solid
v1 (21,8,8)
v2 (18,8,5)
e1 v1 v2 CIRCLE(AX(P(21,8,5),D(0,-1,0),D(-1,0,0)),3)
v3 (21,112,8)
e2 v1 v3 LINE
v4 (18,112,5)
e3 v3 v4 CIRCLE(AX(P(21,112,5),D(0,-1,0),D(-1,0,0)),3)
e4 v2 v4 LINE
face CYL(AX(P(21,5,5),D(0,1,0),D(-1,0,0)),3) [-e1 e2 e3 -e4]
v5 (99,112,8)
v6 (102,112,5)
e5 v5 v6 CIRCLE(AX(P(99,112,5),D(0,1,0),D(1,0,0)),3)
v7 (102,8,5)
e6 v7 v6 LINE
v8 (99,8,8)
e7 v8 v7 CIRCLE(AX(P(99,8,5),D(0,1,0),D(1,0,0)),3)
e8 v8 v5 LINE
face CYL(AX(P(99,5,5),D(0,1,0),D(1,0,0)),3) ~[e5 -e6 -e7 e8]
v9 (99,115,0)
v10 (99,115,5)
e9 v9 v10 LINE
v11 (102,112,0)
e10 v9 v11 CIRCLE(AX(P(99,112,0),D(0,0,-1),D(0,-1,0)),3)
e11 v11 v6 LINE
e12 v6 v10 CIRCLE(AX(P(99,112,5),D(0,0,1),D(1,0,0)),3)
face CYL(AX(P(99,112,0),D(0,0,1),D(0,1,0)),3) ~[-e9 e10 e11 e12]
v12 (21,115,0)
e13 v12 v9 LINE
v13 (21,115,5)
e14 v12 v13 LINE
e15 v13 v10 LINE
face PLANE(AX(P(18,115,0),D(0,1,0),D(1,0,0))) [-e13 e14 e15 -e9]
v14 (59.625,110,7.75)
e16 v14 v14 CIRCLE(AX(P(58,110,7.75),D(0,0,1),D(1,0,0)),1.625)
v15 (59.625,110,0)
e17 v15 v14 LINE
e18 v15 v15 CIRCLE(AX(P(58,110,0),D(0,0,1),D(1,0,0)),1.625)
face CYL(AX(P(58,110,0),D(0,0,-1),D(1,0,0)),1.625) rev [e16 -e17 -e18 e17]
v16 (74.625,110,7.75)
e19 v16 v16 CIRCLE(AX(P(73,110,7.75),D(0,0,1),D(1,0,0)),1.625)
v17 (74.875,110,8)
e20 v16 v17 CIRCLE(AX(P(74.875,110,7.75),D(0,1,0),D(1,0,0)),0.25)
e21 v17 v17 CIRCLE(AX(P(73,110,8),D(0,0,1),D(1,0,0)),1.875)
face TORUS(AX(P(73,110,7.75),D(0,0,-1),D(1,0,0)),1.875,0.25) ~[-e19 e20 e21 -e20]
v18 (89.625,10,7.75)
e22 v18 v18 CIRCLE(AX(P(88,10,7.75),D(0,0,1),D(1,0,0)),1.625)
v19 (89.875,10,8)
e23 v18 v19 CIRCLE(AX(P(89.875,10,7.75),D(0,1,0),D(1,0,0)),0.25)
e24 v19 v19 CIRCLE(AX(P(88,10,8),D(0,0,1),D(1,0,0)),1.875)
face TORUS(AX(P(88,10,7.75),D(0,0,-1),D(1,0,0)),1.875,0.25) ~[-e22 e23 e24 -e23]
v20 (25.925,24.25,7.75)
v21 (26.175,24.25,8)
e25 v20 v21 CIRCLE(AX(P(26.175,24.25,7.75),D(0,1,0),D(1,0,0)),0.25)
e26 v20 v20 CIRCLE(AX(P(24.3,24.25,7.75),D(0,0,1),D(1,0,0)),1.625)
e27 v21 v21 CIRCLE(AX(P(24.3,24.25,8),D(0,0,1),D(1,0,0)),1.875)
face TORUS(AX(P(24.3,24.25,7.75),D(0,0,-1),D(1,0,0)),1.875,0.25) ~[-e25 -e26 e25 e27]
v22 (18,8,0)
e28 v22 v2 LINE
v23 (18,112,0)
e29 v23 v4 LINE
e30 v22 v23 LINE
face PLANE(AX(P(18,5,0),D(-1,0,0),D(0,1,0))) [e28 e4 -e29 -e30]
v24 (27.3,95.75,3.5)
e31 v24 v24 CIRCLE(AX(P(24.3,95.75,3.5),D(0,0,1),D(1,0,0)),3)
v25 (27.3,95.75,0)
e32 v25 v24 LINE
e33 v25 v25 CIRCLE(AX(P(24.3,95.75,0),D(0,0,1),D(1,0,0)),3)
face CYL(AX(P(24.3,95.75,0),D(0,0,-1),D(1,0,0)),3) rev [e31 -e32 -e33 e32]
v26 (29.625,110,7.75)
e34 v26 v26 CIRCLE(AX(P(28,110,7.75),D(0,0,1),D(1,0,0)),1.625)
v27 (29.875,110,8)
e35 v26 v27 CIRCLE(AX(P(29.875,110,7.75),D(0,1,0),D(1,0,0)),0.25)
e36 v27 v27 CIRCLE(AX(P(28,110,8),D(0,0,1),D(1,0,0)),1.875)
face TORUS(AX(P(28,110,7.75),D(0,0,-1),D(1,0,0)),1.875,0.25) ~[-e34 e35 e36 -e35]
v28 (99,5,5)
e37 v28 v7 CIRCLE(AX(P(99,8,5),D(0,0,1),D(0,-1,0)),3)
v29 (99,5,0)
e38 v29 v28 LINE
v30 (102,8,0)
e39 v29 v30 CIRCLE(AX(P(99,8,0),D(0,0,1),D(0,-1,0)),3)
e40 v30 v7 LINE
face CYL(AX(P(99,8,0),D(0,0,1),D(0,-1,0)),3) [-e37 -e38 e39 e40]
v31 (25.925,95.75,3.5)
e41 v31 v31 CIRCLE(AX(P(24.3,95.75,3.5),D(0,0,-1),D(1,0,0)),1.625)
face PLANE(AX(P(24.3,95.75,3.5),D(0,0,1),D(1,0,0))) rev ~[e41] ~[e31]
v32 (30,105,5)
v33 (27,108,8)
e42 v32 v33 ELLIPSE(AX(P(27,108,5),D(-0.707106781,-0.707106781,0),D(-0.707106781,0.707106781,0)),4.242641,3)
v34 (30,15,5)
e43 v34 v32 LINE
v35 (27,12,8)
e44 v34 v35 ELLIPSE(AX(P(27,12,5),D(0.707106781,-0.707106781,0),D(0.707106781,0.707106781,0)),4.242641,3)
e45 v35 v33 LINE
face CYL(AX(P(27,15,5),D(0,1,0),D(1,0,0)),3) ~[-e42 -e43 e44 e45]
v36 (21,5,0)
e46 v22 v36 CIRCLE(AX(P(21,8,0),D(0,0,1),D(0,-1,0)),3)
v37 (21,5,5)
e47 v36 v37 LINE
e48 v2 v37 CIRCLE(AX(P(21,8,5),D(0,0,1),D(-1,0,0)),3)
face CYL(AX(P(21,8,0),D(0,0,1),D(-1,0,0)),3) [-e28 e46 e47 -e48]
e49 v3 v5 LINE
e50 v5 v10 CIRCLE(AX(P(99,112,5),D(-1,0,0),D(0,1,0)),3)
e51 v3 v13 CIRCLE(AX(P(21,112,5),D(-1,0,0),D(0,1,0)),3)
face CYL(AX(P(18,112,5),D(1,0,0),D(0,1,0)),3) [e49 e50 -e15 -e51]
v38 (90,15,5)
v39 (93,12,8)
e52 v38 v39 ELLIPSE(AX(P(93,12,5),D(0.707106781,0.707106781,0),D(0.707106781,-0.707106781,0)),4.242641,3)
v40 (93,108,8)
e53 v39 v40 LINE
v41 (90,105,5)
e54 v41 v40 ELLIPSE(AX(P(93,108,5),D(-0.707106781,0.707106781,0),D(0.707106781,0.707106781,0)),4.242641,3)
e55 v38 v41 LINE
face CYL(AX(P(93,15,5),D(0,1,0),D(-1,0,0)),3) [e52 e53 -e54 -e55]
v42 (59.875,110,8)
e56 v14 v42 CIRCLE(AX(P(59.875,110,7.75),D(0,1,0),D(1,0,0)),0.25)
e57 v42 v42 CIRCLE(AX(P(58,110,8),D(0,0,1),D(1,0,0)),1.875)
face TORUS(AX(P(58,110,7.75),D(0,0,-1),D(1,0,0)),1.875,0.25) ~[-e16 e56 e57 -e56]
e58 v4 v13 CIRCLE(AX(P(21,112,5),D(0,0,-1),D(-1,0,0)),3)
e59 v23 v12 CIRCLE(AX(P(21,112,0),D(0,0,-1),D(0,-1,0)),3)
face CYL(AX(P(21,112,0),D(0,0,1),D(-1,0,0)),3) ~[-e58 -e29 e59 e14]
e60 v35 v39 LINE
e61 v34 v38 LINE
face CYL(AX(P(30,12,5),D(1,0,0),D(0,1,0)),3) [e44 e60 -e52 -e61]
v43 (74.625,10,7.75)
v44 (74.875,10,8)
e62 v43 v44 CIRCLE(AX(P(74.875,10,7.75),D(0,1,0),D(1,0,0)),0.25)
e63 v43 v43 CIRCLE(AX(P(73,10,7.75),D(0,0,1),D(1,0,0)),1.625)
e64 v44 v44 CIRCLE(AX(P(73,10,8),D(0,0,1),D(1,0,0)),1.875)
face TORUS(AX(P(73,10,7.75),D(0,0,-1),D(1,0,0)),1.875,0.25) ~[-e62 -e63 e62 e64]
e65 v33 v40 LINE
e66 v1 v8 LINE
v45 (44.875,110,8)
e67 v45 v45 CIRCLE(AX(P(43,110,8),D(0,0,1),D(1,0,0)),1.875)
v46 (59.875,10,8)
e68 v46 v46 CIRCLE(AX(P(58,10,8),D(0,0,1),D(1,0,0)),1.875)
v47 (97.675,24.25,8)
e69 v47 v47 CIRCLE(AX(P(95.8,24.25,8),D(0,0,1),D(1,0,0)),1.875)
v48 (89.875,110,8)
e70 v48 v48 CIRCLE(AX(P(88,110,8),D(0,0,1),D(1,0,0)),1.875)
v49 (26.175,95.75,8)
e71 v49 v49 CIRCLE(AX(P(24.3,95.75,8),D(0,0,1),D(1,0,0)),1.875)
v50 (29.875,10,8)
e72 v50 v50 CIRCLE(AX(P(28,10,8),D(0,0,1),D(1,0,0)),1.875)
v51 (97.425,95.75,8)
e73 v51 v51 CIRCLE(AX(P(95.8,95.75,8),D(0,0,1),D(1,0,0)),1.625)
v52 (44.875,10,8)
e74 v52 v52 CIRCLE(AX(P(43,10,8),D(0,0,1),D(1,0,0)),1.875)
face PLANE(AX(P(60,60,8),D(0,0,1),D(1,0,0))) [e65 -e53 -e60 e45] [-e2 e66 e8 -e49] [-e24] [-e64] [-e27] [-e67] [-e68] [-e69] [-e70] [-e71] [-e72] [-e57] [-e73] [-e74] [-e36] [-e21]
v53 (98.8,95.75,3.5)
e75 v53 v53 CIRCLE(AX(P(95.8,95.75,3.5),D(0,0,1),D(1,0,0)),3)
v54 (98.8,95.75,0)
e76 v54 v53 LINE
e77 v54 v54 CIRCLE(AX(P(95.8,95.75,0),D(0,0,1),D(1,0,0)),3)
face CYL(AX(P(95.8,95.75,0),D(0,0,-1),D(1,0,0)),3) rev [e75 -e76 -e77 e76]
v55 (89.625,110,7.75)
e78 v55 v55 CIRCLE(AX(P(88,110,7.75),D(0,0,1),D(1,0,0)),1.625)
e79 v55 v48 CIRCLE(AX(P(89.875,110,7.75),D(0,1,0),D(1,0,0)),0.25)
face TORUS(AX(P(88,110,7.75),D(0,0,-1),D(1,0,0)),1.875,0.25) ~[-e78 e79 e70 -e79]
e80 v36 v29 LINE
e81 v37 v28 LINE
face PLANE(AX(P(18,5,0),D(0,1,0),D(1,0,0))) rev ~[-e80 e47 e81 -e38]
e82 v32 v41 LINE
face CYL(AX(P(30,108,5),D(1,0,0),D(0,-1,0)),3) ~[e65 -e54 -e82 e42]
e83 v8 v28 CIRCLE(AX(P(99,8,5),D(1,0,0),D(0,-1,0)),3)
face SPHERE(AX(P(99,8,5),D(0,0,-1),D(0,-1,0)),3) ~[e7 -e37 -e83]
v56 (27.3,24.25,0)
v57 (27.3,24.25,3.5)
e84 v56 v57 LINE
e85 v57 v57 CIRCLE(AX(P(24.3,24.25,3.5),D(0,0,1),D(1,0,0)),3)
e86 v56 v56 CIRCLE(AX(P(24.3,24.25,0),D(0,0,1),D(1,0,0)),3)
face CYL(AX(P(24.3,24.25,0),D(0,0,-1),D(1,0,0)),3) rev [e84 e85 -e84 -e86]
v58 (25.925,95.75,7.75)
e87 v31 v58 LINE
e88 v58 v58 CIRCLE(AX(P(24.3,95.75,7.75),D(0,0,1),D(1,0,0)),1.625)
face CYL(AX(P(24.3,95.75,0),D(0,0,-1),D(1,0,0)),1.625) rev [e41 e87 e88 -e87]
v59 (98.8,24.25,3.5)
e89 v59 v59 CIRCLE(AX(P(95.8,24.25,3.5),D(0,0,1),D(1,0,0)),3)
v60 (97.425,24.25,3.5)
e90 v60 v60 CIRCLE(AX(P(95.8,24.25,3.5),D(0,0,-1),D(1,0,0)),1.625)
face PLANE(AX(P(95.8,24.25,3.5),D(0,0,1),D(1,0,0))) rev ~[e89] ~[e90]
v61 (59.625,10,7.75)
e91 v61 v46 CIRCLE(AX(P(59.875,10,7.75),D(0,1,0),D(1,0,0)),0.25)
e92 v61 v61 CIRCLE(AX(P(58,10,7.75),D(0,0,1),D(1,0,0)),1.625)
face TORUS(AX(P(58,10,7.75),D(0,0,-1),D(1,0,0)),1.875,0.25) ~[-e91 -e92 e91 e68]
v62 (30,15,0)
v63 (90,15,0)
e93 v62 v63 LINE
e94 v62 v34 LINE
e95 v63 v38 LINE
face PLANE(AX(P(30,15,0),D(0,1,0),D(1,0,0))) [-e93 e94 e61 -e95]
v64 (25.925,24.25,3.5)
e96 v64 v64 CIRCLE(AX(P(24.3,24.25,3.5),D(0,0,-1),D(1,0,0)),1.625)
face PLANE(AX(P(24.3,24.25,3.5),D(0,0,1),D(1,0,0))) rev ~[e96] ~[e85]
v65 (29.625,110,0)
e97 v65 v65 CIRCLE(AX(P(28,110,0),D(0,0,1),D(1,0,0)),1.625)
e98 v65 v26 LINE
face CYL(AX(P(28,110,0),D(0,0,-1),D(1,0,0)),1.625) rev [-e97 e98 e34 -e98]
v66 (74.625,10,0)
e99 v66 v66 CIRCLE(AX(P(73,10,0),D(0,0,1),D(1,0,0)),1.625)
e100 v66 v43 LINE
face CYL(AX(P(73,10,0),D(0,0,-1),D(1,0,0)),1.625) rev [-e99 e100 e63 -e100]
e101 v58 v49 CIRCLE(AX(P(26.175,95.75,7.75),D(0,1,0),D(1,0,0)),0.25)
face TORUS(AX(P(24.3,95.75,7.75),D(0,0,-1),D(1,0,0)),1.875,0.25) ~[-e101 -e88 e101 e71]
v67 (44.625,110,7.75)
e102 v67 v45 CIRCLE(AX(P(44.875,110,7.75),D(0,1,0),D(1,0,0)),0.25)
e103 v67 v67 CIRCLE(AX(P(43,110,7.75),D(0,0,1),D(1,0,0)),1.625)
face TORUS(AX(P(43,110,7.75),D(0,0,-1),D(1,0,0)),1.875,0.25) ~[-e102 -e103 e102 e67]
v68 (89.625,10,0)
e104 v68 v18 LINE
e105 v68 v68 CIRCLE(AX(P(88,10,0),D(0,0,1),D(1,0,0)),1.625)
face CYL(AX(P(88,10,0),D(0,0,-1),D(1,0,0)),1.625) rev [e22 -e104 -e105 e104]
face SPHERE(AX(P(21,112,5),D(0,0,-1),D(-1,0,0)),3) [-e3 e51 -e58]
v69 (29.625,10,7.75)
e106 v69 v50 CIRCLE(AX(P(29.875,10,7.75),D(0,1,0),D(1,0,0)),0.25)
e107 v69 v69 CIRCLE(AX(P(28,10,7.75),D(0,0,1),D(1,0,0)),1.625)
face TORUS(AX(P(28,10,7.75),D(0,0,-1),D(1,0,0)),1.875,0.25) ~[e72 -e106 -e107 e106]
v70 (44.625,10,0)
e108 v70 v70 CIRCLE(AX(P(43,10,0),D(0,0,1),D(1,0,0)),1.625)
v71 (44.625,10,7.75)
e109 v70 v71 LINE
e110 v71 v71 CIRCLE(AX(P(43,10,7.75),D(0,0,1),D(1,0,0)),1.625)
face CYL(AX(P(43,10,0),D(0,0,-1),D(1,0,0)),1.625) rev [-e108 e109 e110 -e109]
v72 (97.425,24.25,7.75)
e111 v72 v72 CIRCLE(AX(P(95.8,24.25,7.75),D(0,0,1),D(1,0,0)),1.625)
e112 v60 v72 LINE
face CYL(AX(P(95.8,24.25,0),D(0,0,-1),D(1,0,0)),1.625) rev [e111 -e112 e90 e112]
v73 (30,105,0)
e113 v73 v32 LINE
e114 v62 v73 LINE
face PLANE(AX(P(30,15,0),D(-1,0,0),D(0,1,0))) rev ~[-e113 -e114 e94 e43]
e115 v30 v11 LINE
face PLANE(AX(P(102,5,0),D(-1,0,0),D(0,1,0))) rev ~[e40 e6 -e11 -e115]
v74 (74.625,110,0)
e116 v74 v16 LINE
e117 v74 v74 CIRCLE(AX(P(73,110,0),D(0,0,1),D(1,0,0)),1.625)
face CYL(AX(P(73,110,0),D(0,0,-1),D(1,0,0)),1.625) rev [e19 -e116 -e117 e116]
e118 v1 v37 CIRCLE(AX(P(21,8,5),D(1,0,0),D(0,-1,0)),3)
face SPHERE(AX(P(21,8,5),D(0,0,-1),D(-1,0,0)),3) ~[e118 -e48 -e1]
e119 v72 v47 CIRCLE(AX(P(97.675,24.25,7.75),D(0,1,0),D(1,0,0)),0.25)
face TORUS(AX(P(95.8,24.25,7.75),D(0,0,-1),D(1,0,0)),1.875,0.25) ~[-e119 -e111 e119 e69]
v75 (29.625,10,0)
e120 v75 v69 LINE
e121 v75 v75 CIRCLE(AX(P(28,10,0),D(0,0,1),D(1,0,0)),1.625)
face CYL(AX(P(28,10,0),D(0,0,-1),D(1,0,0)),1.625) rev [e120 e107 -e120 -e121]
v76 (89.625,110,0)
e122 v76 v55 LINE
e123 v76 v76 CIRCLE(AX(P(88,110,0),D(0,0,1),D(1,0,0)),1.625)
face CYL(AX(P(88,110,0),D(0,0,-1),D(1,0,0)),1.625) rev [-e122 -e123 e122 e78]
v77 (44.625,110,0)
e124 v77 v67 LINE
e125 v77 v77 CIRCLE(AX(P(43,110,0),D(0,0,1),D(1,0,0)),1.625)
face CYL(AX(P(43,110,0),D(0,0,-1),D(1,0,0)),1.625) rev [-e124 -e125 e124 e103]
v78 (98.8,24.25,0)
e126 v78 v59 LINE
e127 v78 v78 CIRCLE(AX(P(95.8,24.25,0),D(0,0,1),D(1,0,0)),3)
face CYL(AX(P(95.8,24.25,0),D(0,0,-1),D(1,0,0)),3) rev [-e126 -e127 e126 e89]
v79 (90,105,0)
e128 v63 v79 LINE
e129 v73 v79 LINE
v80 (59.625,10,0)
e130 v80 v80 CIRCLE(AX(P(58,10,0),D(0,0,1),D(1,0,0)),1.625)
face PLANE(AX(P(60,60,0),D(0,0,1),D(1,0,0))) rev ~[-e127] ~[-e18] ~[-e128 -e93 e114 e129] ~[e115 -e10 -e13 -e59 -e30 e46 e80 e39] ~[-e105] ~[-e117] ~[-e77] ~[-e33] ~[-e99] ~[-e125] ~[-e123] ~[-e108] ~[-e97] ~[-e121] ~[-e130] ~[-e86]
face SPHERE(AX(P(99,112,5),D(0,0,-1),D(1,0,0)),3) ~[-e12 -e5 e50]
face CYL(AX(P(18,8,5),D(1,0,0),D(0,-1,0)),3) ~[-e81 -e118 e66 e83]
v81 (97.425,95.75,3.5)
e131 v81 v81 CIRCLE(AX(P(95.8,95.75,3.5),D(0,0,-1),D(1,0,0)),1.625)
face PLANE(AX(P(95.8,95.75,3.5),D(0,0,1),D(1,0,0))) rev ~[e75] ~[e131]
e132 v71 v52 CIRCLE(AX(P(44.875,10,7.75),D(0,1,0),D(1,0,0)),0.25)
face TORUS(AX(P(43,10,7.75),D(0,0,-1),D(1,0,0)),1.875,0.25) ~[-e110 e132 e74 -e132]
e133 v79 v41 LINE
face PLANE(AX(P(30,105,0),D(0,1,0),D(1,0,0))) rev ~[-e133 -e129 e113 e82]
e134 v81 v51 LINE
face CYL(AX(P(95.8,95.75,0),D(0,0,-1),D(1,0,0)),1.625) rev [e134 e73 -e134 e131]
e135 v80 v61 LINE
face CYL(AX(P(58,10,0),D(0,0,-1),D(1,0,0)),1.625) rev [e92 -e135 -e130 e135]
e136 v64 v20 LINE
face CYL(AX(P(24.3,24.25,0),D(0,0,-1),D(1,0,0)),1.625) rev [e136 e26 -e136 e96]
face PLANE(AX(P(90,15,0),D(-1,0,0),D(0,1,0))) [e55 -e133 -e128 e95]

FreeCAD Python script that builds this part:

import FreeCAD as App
import Part
import Sketcher
from FreeCAD import Vector


def edges_at(feature, points):
    """Names of the edges that pass closest to the given points."""
    edges = feature.Shape.Edges
    near = lambda p: min(range(len(edges)), key=lambda i: edges[i].distToShape(Part.Vertex(*p))[0])
    return sorted({f"Edge{near(p) + 1}" for p in points})


def add_polygon(sketch, points):
    """Adds a closed chain of lines whose ends are joined by coincident constraints."""
    first, n = sketch.GeometryCount, len(points)
    for a, b in zip(points, points[1:] + points[:1]):
        sketch.addGeometry(Part.LineSegment(App.Vector(*a, 0), App.Vector(*b, 0)), False)
    for i in range(n):
        sketch.addConstraint(Sketcher.Constraint("Coincident", first + i, 2, first + (i + 1) % n, 1))

doc = App.newDocument("Part")
body = doc.addObject("PartDesign::Body", "Body")
body.AllowCompound = True

sketch1 = body.newObject("Sketcher::SketchObject", "Sketch")
sketch1.AttachmentSupport = (doc.getObject("XY_Plane"), [""])
sketch1.MapMode = "FlatFace"
sketch1.addGeometry(Part.Circle(Vector(24.3, 95.8, 0), Vector(0, 0, 1), 3), False)
sketch1.addGeometry(Part.Circle(Vector(95.8, 95.8, 0), Vector(0, 0, 1), 3), False)
sketch1.addGeometry(Part.Circle(Vector(95.8, 24.2, 0), Vector(0, 0, 1), 3), False)
sketch1.addGeometry(Part.Circle(Vector(24.3, 24.2, 0), Vector(0, 0, 1), 3), False)
sketch1.addConstraint(Sketcher.Constraint("Equal", 0, 1))
sketch1.addConstraint(Sketcher.Constraint("Equal", 1, 2))
sketch1.addConstraint(Sketcher.Constraint("Equal", 2, 3))
sketch1.addConstraint(Sketcher.Constraint("Horizontal", 0, 3, 1, 3))
sketch1.addConstraint(Sketcher.Constraint("Horizontal", 2, 3, 3, 3))
sketch1.addConstraint(Sketcher.Constraint("Vertical", 1, 3, 2, 3))
sketch1.addConstraint(Sketcher.Constraint("Vertical", 0, 3, 3, 3))
sketch1.addConstraint(Sketcher.Constraint("Diameter", 0, 6.0))
sketch1.addConstraint(Sketcher.Constraint("DistanceX", -1, 1, 0, 3, 24.3))
sketch1.addConstraint(Sketcher.Constraint("DistanceX", -1, 1, 1, 3, 95.8))
sketch1.addConstraint(Sketcher.Constraint("DistanceY", 2, 3, 1, 3, 71.5))
sketch1.addConstraint(Sketcher.Constraint("DistanceY", -1, 1, 0, 3, 95.75))
pad1 = body.newObject("PartDesign::Pad", "Pad")
pad1.Profile = sketch1
pad1.Length = 3.5
body2 = doc.addObject("PartDesign::Body", "Body001")

sketch2 = body2.newObject("Sketcher::SketchObject", "Sketch001")
sketch2.AttachmentSupport = (doc.getObject("XY_Plane001"), [""])
sketch2.MapMode = "FlatFace"
add_polygon(sketch2, [(18, 115), (18, 5), (102, 5), (102, 115)])
sketch2.addGeometry(Part.Circle(Vector(28, 10, 0), Vector(0, 0, 1), 1.6), False)
sketch2.addGeometry(Part.Circle(Vector(24.3, 24.2, 0), Vector(0, 0, 1), 1.6), False)
sketch2.addGeometry(Part.Circle(Vector(43, 10, 0), Vector(0, 0, 1), 1.6), False)
sketch2.addGeometry(Part.Circle(Vector(58, 10, 0), Vector(0, 0, 1), 1.6), False)
sketch2.addGeometry(Part.Circle(Vector(73, 10, 0), Vector(0, 0, 1), 1.6), False)
sketch2.addGeometry(Part.Circle(Vector(88, 10, 0), Vector(0, 0, 1), 1.6), False)
sketch2.addGeometry(Part.Circle(Vector(95.8, 24.2, 0), Vector(0, 0, 1), 1.6), False)
add_polygon(sketch2, [(90, 15), (30, 15), (30, 105), (90, 105)])
sketch2.addGeometry(Part.Circle(Vector(24.3, 95.8, 0), Vector(0, 0, 1), 1.6), False)
sketch2.addGeometry(Part.Circle(Vector(28, 110, 0), Vector(0, 0, 1), 1.6), False)
sketch2.addGeometry(Part.Circle(Vector(43, 110, 0), Vector(0, 0, 1), 1.6), False)
sketch2.addGeometry(Part.Circle(Vector(58, 110, 0), Vector(0, 0, 1), 1.6), False)
sketch2.addGeometry(Part.Circle(Vector(73, 110, 0), Vector(0, 0, 1), 1.6), False)
sketch2.addGeometry(Part.Circle(Vector(95.8, 95.8, 0), Vector(0, 0, 1), 1.6), False)
sketch2.addGeometry(Part.Circle(Vector(88, 110, 0), Vector(0, 0, 1), 1.6), False)
sketch2.addConstraint(Sketcher.Constraint("Vertical", 0))
sketch2.addConstraint(Sketcher.Constraint("Horizontal", 1))
sketch2.addConstraint(Sketcher.Constraint("Vertical", 2))
sketch2.addConstraint(Sketcher.Constraint("Horizontal", 3))
sketch2.addConstraint(Sketcher.Constraint("Horizontal", 11))
sketch2.addConstraint(Sketcher.Constraint("Vertical", 12))
sketch2.addConstraint(Sketcher.Constraint("Horizontal", 13))
sketch2.addConstraint(Sketcher.Constraint("Vertical", 14))
sketch2.addConstraint(Sketcher.Constraint("Equal", 4, 5))
sketch2.addConstraint(Sketcher.Constraint("Equal", 5, 6))
sketch2.addConstraint(Sketcher.Constraint("Equal", 6, 7))
sketch2.addConstraint(Sketcher.Constraint("Equal", 7, 8))
sketch2.addConstraint(Sketcher.Constraint("Equal", 8, 9))
sketch2.addConstraint(Sketcher.Constraint("Equal", 9, 10))
sketch2.addConstraint(Sketcher.Constraint("Equal", 10, 15))
sketch2.addConstraint(Sketcher.Constraint("Equal", 15, 16))
sketch2.addConstraint(Sketcher.Constraint("Equal", 16, 17))
sketch2.addConstraint(Sketcher.Constraint("Equal", 17, 18))
sketch2.addConstraint(Sketcher.Constraint("Equal", 18, 19))
sketch2.addConstraint(Sketcher.Constraint("Equal", 19, 20))
sketch2.addConstraint(Sketcher.Constraint("Equal", 20, 21))
sketch2.addConstraint(Sketcher.Constraint("Horizontal", 4, 3, 6, 3))
sketch2.addConstraint(Sketcher.Constraint("Horizontal", 6, 3, 7, 3))
sketch2.addConstraint(Sketcher.Constraint("Horizontal", 7, 3, 8, 3))
sketch2.addConstraint(Sketcher.Constraint("Horizontal", 8, 3, 9, 3))
sketch2.addConstraint(Sketcher.Constraint("Horizontal", 5, 3, 10, 3))
sketch2.addConstraint(Sketcher.Constraint("Horizontal", 16, 3, 17, 3))
sketch2.addConstraint(Sketcher.Constraint("Horizontal", 17, 3, 18, 3))
sketch2.addConstraint(Sketcher.Constraint("Horizontal", 18, 3, 19, 3))
sketch2.addConstraint(Sketcher.Constraint("Horizontal", 15, 3, 20, 3))
sketch2.addConstraint(Sketcher.Constraint("Horizontal", 19, 3, 21, 3))
sketch2.addConstraint(Sketcher.Constraint("Vertical", 5, 3, 15, 3))
sketch2.addConstraint(Sketcher.Constraint("Vertical", 4, 3, 16, 3))
sketch2.addConstraint(Sketcher.Constraint("Vertical", 6, 3, 17, 3))
sketch2.addConstraint(Sketcher.Constraint("Vertical", 7, 3, 18, 3))
sketch2.addConstraint(Sketcher.Constraint("Vertical", 8, 3, 19, 3))
sketch2.addConstraint(Sketcher.Constraint("Vertical", 10, 3, 20, 3))
sketch2.addConstraint(Sketcher.Constraint("Vertical", 9, 3, 21, 3))
sketch2.addConstraint(Sketcher.Constraint("Diameter", 4, 3.25))
sketch2.addConstraint(Sketcher.Constraint("DistanceX", 1, 1, 1, 2, 84.0))
sketch2.addConstraint(Sketcher.Constraint("DistanceX", 11, 2, 11, 1, 60.0))
sketch2.addConstraint(Sketcher.Constraint("DistanceY", 0, 2, 0, 1, 110.0))
sketch2.addConstraint(Sketcher.Constraint("DistanceY", 12, 1, 12, 2, 90.0))
sketch2.addConstraint(Sketcher.Constraint("DistanceX", -1, 1, 4, 3, 28.0))
sketch2.addConstraint(Sketcher.Constraint("DistanceY", -1, 1, 4, 3, 10.0))
sketch2.addConstraint(Sketcher.Constraint("DistanceX", -1, 1, 6, 3, 43.0))
sketch2.addConstraint(Sketcher.Constraint("DistanceX", -1, 1, 7, 3, 58.0))
sketch2.addConstraint(Sketcher.Constraint("DistanceX", -1, 1, 8, 3, 73.0))
sketch2.addConstraint(Sketcher.Constraint("DistanceX", -1, 1, 9, 3, 88.0))
sketch2.addConstraint(Sketcher.Constraint("DistanceY", -1, 1, 16, 3, 110.0))
sketch2.addConstraint(Sketcher.Constraint("DistanceX", -1, 1, 0, 2, 18.0))
sketch2.addConstraint(Sketcher.Constraint("DistanceY", -1, 1, 0, 2, 5.0))
sketch2.addConstraint(Sketcher.Constraint("DistanceX", -1, 1, 11, 2, 30.0))
sketch2.addConstraint(Sketcher.Constraint("DistanceY", -1, 1, 11, 2, 15.0))
sketch2.addConstraint(Sketcher.Constraint("DistanceX", -1, 1, 5, 3, 24.3))
sketch2.addConstraint(Sketcher.Constraint("DistanceX", -1, 1, 10, 3, 95.8))
sketch2.addConstraint(Sketcher.Constraint("DistanceY", 5, 3, 15, 3, 71.5))
sketch2.addConstraint(Sketcher.Constraint("DistanceY", -1, 1, 5, 3, 24.25))
pad2 = body2.newObject("PartDesign::Pad", "Pad001")
pad2.Profile = sketch2
pad2.Length = 8
doc.recompute()

fillet = body2.newObject("PartDesign::Fillet", "Fillet")
fillet.Base = (pad2, edges_at(pad2, [
    (18, 115, 4),
    (18, 5, 4),
    (18, 60, 8),
    (102, 5, 4),
    (60, 5, 8),
    (102, 115, 4),
    (102, 60, 8),
    (60, 115, 8),
    (30, 60, 8),
    (60, 15, 8),
    (90, 60, 8),
    (60, 105, 8),
]))
fillet.Radius = 3
doc.recompute()

fillet2 = body2.newObject("PartDesign::Fillet", "Fillet001")
fillet2.Base = (fillet, edges_at(fillet, [
    (86.375, 110, 8),
    (71.375, 110, 8),
    (56.375, 110, 8),
    (41.375, 110, 8),
    (26.375, 110, 8),
    (86.375, 10, 8),
    (71.375, 10, 8),
    (56.375, 10, 8),
    (41.375, 10, 8),
    (26.375, 10, 8),
    (22.675, 24.25, 8),
    (94.175, 24.25, 8),
    (22.675, 95.75, 8),
]))
fillet2.Radius = 0.25
doc.recompute()

boolean = body2.newObject("PartDesign::Boolean", "Boolean")
boolean.Type = "Cut"
boolean.addObjects([body])

doc.recompute()
